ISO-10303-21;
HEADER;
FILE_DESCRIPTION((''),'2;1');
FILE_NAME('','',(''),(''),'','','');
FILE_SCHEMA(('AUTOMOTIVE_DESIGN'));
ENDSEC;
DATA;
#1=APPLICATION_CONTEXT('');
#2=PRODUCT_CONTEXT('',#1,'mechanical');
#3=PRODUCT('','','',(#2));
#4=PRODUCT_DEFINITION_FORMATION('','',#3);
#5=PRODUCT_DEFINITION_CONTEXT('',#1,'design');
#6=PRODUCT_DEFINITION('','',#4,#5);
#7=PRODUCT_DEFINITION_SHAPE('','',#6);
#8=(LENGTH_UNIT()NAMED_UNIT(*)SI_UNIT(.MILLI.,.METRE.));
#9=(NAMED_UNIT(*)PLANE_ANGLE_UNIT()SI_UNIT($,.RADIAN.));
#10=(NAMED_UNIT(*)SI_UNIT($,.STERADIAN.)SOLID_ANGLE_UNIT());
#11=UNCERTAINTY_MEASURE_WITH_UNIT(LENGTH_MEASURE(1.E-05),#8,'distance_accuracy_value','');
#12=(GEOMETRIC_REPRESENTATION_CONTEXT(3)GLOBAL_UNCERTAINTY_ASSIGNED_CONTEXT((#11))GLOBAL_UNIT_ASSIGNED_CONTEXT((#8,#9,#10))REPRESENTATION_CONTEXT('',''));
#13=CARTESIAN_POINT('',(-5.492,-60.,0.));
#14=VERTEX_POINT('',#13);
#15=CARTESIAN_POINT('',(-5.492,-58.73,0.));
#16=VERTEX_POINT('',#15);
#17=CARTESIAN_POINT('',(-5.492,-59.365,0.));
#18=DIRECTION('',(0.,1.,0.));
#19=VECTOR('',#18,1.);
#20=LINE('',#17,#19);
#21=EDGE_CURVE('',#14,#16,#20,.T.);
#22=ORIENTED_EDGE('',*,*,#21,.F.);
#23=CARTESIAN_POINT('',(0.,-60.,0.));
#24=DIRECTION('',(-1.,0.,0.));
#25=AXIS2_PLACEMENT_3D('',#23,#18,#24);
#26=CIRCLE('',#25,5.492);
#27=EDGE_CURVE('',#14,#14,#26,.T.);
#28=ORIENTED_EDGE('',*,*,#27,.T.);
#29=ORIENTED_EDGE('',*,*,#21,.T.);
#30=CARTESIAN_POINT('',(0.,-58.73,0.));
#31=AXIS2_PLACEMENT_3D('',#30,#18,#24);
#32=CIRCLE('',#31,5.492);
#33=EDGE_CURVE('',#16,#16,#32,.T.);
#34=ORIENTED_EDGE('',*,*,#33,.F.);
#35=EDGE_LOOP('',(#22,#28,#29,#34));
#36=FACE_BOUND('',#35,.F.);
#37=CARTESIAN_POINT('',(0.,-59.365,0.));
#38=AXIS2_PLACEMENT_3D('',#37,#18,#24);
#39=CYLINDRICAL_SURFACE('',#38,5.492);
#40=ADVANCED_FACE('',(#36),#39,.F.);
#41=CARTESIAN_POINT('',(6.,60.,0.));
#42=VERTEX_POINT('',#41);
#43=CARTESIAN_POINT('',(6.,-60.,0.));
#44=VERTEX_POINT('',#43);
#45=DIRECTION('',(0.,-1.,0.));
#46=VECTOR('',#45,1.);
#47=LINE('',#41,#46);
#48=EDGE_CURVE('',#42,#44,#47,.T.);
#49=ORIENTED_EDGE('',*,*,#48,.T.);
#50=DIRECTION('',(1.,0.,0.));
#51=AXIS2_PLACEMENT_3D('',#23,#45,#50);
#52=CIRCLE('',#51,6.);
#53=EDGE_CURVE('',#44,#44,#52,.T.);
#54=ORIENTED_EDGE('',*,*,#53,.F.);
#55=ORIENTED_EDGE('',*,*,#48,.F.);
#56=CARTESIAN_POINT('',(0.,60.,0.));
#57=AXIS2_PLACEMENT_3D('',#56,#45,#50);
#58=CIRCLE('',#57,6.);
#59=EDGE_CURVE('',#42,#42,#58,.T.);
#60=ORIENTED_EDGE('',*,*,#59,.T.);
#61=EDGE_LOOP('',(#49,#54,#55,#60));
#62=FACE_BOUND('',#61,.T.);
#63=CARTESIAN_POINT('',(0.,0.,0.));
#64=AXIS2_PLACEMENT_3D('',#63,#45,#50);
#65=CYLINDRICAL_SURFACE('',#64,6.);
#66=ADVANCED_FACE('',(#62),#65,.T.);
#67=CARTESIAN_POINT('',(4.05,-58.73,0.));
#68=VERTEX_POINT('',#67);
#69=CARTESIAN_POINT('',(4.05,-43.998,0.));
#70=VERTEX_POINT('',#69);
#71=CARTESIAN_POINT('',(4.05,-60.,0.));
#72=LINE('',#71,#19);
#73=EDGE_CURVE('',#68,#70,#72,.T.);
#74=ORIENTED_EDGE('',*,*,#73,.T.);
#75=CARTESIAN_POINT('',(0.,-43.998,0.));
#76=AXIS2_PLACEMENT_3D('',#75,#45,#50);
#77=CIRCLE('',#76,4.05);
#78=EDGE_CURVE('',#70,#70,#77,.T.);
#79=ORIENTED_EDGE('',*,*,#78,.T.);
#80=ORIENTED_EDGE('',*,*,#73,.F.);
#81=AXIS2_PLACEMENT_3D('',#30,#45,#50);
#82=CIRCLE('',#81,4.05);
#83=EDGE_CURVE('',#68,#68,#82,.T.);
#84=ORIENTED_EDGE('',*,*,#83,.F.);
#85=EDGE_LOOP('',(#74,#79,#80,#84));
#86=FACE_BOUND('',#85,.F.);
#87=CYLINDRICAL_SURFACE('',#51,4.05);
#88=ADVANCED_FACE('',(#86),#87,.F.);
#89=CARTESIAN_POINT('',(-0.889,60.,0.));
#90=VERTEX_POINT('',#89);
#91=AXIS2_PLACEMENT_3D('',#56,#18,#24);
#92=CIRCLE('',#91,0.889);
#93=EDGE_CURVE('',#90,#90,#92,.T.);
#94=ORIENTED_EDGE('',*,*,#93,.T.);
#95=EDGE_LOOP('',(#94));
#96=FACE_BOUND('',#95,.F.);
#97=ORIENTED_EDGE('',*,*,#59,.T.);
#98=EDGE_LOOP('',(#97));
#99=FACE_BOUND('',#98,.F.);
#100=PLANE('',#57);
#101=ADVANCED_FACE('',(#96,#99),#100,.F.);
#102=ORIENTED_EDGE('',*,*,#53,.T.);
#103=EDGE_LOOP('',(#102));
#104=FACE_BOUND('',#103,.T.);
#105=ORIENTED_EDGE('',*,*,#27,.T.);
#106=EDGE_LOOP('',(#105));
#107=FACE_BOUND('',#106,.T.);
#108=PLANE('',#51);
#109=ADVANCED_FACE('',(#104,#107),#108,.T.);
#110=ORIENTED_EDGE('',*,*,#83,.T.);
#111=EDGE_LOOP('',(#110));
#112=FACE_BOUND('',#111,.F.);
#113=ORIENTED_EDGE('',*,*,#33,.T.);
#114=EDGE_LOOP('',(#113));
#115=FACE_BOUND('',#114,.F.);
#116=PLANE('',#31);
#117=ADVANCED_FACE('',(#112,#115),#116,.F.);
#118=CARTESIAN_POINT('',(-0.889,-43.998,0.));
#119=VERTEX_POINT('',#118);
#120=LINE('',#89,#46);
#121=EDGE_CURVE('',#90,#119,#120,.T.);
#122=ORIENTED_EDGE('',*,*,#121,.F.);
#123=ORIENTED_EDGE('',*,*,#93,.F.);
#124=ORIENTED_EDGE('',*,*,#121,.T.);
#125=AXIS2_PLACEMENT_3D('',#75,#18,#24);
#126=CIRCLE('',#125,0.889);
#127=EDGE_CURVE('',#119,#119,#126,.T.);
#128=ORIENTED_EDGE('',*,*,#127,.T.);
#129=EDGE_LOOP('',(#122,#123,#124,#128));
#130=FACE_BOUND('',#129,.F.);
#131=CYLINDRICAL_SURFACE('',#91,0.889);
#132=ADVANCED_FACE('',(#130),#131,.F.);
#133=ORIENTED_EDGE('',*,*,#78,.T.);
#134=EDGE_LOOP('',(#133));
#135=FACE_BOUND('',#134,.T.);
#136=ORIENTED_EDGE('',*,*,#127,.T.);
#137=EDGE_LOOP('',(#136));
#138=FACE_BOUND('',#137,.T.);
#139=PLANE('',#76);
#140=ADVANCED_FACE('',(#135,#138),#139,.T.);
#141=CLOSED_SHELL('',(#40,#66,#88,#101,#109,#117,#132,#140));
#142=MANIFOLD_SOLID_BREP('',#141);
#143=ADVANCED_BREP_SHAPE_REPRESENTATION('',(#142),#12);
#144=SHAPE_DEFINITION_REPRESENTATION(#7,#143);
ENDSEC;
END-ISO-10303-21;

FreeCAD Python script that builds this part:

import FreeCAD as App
import Part
import Sketcher

V = App.Vector
Q = App.Units.Quantity

doc = App.newDocument("Part")
body = doc.addObject("PartDesign::Body", "Body")

# Sketch on XZ plane
sketch1 = doc.addObject("Sketcher::SketchObject", "Sketch")
body.addObject(sketch1)
sketch1.AttachmentSupport = (doc.XZ_Plane, [""])
sketch1.MapMode = "FlatFace"
sketch1.addGeometry(Part.Circle(V(0, 0, 0), V(0, 0, 1), 6), False)
sketch1.addConstraint([
    Sketcher.Constraint("Coincident", 0, 3, -1, 1),
    Sketcher.Constraint("Diameter", 0, 12.0),
])
pad1 = doc.addObject("PartDesign::Pad", "Pad")
body.addObject(pad1)
pad1.Profile = sketch1
pad1.Length = 120
pad1.Midplane = True

# Sketch on XZ plane
sketch2 = doc.addObject("Sketcher::SketchObject", "Sketch001")
body.addObject(sketch2)
sketch2.AttachmentSupport = (doc.XZ_Plane, [""])
sketch2.MapMode = "FlatFace"
sketch2.AttachmentOffset = App.Placement(V(0, 0, 60), App.Rotation())
sketch2.addGeometry(Part.Circle(V(0, 0, 0), V(0, 0, 1), 4), False)
sketch2.addConstraint([
    Sketcher.Constraint("Coincident", 0, 3, -1, 1),
    Sketcher.Constraint("Diameter", 0, 8.1),
])
pocket1 = doc.addObject("PartDesign::Pocket", "Pocket")
body.addObject(pocket1)
pocket1.Profile = sketch2
pocket1.Length = Q("0.63 in")

# Sketch on XZ plane
sketch3 = doc.addObject("Sketcher::SketchObject", "Sketch002")
body.addObject(sketch3)
sketch3.AttachmentSupport = (doc.XZ_Plane, [""])
sketch3.MapMode = "FlatFace"
sketch3.AttachmentOffset = App.Placement(V(0, 0, -60), App.Rotation())
sketch3.addGeometry(Part.Circle(V(0, 0, 0), V(0, 0, 1), 0.9), False)
sketch3.addConstraint([
    Sketcher.Constraint("Coincident", 0, 3, -1, 1),
    Sketcher.Constraint("Diameter", 0, Q("0.07 in")),
])
pocket2 = doc.addObject("PartDesign::Pocket", "Pocket001")
body.addObject(pocket2)
pocket2.Profile = sketch3
pocket2.Type = "ThroughAll"
pocket2.Reversed = True

# Sketch on XY plane
sketch4 = doc.addObject("Sketcher::SketchObject", "Sketch003")
body.addObject(sketch4)
sketch4.AttachmentSupport = (doc.XY_Plane, [""])
sketch4.MapMode = "FlatFace"
sketch4.addGeometry([
    Part.LineSegment(V(-5.5, -58.7, 0), V(-5.5, -60, 0)),
    Part.LineSegment(V(-5.5, -60, 0), V(-3.8, -60, 0)),
    Part.LineSegment(V(-3.8, -60, 0), V(-3.8, -58.7, 0)),
    Part.LineSegment(V(-3.8, -58.7, 0), V(-5.5, -58.7, 0)),
], False)
sketch4.addConstraint([
    Sketcher.Constraint("Coincident", 0, 2, 1, 1),
    Sketcher.Constraint("Coincident", 1, 2, 2, 1),
    Sketcher.Constraint("Coincident", 2, 2, 3, 1),
    Sketcher.Constraint("Coincident", 3, 2, 0, 1),
    Sketcher.Constraint("Vertical", 0),
    Sketcher.Constraint("Horizontal", 1),
    Sketcher.Constraint("Vertical", 2),
    Sketcher.Constraint("Horizontal", 3),
    Sketcher.Constraint("DistanceY", 0, 2, 0, 1, Q("0.05 in")),
    Sketcher.Constraint("DistanceX", 1, 1, 1, 2, Q("0.065 in")),
    Sketcher.Constraint("DistanceX", 0, 2, -1, 1, 5.492),
    Sketcher.Constraint("DistanceY", 0, 2, -1, 1, 60.0),
])
groove = doc.addObject("PartDesign::Groove", "Groove")
body.addObject(groove)
groove.Profile = sketch4
groove.ReferenceAxis = (sketch4, ["V_Axis"])
groove.Angle = 360

doc.recompute()
